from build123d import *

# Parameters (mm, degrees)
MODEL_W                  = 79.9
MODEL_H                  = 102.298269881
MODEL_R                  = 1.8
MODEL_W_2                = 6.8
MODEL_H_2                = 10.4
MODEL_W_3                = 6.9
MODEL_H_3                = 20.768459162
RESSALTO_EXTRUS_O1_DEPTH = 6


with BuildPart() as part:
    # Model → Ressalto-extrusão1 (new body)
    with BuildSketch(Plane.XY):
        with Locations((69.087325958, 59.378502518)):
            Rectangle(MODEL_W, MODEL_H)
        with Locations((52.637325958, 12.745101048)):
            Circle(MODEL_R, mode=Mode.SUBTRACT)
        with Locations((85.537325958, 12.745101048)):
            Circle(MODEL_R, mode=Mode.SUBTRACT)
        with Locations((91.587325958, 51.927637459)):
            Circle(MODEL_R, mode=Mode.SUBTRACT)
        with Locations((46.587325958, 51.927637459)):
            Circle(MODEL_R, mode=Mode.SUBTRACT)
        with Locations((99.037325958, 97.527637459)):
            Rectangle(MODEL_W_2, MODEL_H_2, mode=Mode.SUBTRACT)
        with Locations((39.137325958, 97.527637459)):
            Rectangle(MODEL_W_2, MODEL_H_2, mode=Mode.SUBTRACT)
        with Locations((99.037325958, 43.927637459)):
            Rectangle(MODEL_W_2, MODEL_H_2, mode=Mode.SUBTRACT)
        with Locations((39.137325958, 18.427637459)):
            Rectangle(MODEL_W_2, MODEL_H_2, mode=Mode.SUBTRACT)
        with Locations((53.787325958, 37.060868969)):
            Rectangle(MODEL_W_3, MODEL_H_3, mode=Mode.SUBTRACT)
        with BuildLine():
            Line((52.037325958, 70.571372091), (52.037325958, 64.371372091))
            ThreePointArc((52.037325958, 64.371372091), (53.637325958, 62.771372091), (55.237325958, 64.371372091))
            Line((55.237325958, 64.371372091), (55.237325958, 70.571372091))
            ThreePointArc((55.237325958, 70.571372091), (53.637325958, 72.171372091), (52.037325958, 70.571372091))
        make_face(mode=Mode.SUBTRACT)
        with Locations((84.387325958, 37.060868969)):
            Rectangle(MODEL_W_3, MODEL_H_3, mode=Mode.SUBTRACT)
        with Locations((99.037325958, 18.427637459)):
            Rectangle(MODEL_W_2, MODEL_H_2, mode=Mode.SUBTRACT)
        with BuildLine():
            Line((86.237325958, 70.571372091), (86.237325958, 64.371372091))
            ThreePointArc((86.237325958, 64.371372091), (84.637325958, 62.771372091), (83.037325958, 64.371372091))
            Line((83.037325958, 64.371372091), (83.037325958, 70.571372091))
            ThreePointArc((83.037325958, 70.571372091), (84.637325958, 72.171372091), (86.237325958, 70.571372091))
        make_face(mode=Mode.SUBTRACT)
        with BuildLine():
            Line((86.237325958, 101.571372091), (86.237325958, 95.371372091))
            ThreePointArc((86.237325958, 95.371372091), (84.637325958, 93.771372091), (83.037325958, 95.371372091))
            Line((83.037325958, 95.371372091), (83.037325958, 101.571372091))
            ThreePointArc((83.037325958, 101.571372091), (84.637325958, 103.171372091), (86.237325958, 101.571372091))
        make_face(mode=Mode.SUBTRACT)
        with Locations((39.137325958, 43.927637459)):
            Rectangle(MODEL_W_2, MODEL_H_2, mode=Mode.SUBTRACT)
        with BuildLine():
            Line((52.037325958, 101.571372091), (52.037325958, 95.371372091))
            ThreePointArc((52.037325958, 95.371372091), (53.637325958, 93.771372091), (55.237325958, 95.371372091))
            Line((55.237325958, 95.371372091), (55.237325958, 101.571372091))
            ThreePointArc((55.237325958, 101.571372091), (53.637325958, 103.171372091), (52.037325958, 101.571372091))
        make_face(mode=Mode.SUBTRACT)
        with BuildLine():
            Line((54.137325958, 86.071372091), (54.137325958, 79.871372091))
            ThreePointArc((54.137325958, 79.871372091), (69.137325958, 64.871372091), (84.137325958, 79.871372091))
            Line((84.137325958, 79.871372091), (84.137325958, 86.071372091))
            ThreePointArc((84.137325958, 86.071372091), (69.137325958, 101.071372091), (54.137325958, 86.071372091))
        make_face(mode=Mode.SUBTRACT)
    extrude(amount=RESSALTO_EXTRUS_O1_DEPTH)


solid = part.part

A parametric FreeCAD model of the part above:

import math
import FreeCAD as App
import Part
import Sketcher
from FreeCAD import Vector
Q = App.Units.Quantity


def add_polygon(sketch, points):
    """Adds a closed chain of lines whose ends are joined by coincident constraints."""
    first, n = sketch.GeometryCount, len(points)
    for a, b in zip(points, points[1:] + points[:1]):
        sketch.addGeometry(Part.LineSegment(App.Vector(*a, 0), App.Vector(*b, 0)), False)
    for i in range(n):
        sketch.addConstraint(Sketcher.Constraint("Coincident", first + i, 2, first + (i + 1) % n, 1))

doc = App.newDocument("Part")
body = doc.addObject("PartDesign::Body", "Body")

sketch1 = body.newObject("Sketcher::SketchObject", "Sketch")
sketch1.AttachmentSupport = (doc.getObject("XY_Plane"), [""])
sketch1.MapMode = "FlatFace"
add_polygon(sketch1, [(29.137326, 110.527637), (29.137326, 8.229368), (109.037326, 8.229368), (109.037326, 110.527637)])
add_polygon(sketch1, [(42.537326, 13.227637), (35.737326, 13.227637), (35.737326, 23.627637), (42.537326, 23.627637)])
sketch1.addGeometry(Part.Circle(Vector(52.637326, 12.745101, 0), Vector(0, 0, 1), 1.8), False)
add_polygon(sketch1, [(42.537326, 38.727637), (35.737326, 38.727637), (35.737326, 49.127637), (42.537326, 49.127637)])
sketch1.addGeometry(Part.Circle(Vector(46.587326, 51.927637, 0), Vector(0, 0, 1), 1.8), False)
add_polygon(sketch1, [(57.237326, 26.676639), (50.337326, 26.676639), (50.337326, 47.445099), (57.237326, 47.445099)])
sketch1.addGeometry(Part.Circle(Vector(85.537326, 12.745101, 0), Vector(0, 0, 1), 1.8), False)
add_polygon(sketch1, [(102.437326, 13.227637), (95.637326, 13.227637), (95.637326, 23.627637), (102.437326, 23.627637)])
add_polygon(sketch1, [(87.837326, 26.676639), (80.937326, 26.676639), (80.937326, 47.445099), (87.837326, 47.445099)])
add_polygon(sketch1, [(102.437326, 38.727637), (95.637326, 38.727637), (95.637326, 49.127637), (102.437326, 49.127637)])
sketch1.addGeometry(Part.Circle(Vector(91.587326, 51.927637, 0), Vector(0, 0, 1), 1.8), False)
sketch1.addGeometry(Part.LineSegment(Vector(52.037326, 64.371372, 0), Vector(52.037326, 70.571372, 0)), False)
sketch1.addGeometry(Part.ArcOfCircle(Part.Circle(Vector(53.637326, 70.571372, 0), Vector(0, 0, 1), 1.6), math.radians(0), math.radians(180)), False)
sketch1.addGeometry(Part.LineSegment(Vector(55.237326, 70.571372, 0), Vector(55.237326, 64.371372, 0)), False)
sketch1.addGeometry(Part.ArcOfCircle(Part.Circle(Vector(53.637326, 64.371372, 0), Vector(0, 0, 1), 1.6), math.radians(180), math.radians(360)), False)
add_polygon(sketch1, [(42.537326, 92.327637), (35.737326, 92.327637), (35.737326, 102.727637), (42.537326, 102.727637)])
sketch1.addGeometry(Part.LineSegment(Vector(52.037326, 95.371372, 0), Vector(52.037326, 101.571372, 0)), False)
sketch1.addGeometry(Part.ArcOfCircle(Part.Circle(Vector(53.637326, 101.571372, 0), Vector(0, 0, 1), 1.6), math.radians(0), math.radians(180)), False)
sketch1.addGeometry(Part.LineSegment(Vector(55.237326, 101.571372, 0), Vector(55.237326, 95.371372, 0)), False)
sketch1.addGeometry(Part.ArcOfCircle(Part.Circle(Vector(53.637326, 95.371372, 0), Vector(0, 0, 1), 1.6), math.radians(180), math.radians(360)), False)
sketch1.addGeometry(Part.ArcOfCircle(Part.Circle(Vector(84.637326, 70.571372, 0), Vector(0, 0, 1), 1.6), math.radians(0), math.radians(180)), False)
sketch1.addGeometry(Part.LineSegment(Vector(86.237326, 70.571372, 0), Vector(86.237326, 64.371372, 0)), False)
sketch1.addGeometry(Part.ArcOfCircle(Part.Circle(Vector(84.637326, 64.371372, 0), Vector(0, 0, 1), 1.6), math.radians(180), math.radians(360)), False)
sketch1.addGeometry(Part.LineSegment(Vector(83.037326, 64.371372, 0), Vector(83.037326, 70.571372, 0)), False)
sketch1.addGeometry(Part.LineSegment(Vector(54.137326, 79.871372, 0), Vector(54.137326, 86.071372, 0)), False)
sketch1.addGeometry(Part.ArcOfCircle(Part.Circle(Vector(69.137326, 86.071372, 0), Vector(0, 0, 1), 15), math.radians(0), math.radians(180)), False)
sketch1.addGeometry(Part.LineSegment(Vector(84.137326, 86.071372, 0), Vector(84.137326, 79.871372, 0)), False)
sketch1.addGeometry(Part.ArcOfCircle(Part.Circle(Vector(69.137326, 79.871372, 0), Vector(0, 0, 1), 15), math.radians(180), math.radians(360)), False)
sketch1.addGeometry(Part.ArcOfCircle(Part.Circle(Vector(84.637326, 101.571372, 0), Vector(0, 0, 1), 1.6), math.radians(0), math.radians(180)), False)
sketch1.addGeometry(Part.LineSegment(Vector(86.237326, 101.571372, 0), Vector(86.237326, 95.371372, 0)), False)
sketch1.addGeometry(Part.ArcOfCircle(Part.Circle(Vector(84.637326, 95.371372, 0), Vector(0, 0, 1), 1.6), math.radians(180), math.radians(360)), False)
sketch1.addGeometry(Part.LineSegment(Vector(83.037326, 95.371372, 0), Vector(83.037326, 101.571372, 0)), False)
add_polygon(sketch1, [(102.437326, 92.327637), (95.637326, 92.327637), (95.637326, 102.727637), (102.437326, 102.727637)])
sketch1.addConstraint([
    Sketcher.Constraint("Tangent", 32, 2, 33, 2),
    Sketcher.Constraint("Tangent", 33, 1, 34, 1),
    Sketcher.Constraint("Tangent", 34, 2, 35, 2),
    Sketcher.Constraint("Tangent", 35, 1, 32, 1),
    Sketcher.Constraint("Tangent", 40, 2, 41, 2),
    Sketcher.Constraint("Tangent", 41, 1, 42, 1),
    Sketcher.Constraint("Tangent", 42, 2, 43, 2),
    Sketcher.Constraint("Tangent", 43, 1, 40, 1),
    Sketcher.Constraint("Tangent", 44, 1, 45, 1),
    Sketcher.Constraint("Tangent", 45, 2, 46, 2),
    Sketcher.Constraint("Tangent", 46, 1, 47, 1),
    Sketcher.Constraint("Tangent", 47, 2, 44, 2),
    Sketcher.Constraint("Tangent", 48, 2, 49, 2),
    Sketcher.Constraint("Tangent", 49, 1, 50, 1),
    Sketcher.Constraint("Tangent", 50, 2, 51, 2),
    Sketcher.Constraint("Tangent", 51, 1, 48, 1),
    Sketcher.Constraint("Tangent", 52, 1, 53, 1),
    Sketcher.Constraint("Tangent", 53, 2, 54, 2),
    Sketcher.Constraint("Tangent", 54, 1, 55, 1),
    Sketcher.Constraint("Tangent", 55, 2, 52, 2),
    Sketcher.Constraint("Vertical", 0),
    Sketcher.Constraint("Horizontal", 1),
    Sketcher.Constraint("Vertical", 2),
    Sketcher.Constraint("Horizontal", 3),
    Sketcher.Constraint("Horizontal", 4),
    Sketcher.Constraint("Vertical", 5),
    Sketcher.Constraint("Horizontal", 6),
    Sketcher.Constraint("Vertical", 7),
    Sketcher.Constraint("Horizontal", 9),
    Sketcher.Constraint("Vertical", 10),
    Sketcher.Constraint("Horizontal", 11),
    Sketcher.Constraint("Vertical", 12),
    Sketcher.Constraint("Horizontal", 14),
    Sketcher.Constraint("Vertical", 15),
    Sketcher.Constraint("Horizontal", 16),
    Sketcher.Constraint("Vertical", 17),
    Sketcher.Constraint("Horizontal", 19),
    Sketcher.Constraint("Vertical", 20),
    Sketcher.Constraint("Horizontal", 21),
    Sketcher.Constraint("Vertical", 22),
    Sketcher.Constraint("Horizontal", 23),
    Sketcher.Constraint("Vertical", 24),
    Sketcher.Constraint("Horizontal", 25),
    Sketcher.Constraint("Vertical", 26),
    Sketcher.Constraint("Horizontal", 27),
    Sketcher.Constraint("Vertical", 28),
    Sketcher.Constraint("Horizontal", 29),
    Sketcher.Constraint("Vertical", 30),
    Sketcher.Constraint("Vertical", 32),
    Sketcher.Constraint("Vertical", 34),
    Sketcher.Constraint("Horizontal", 36),
    Sketcher.Constraint("Vertical", 37),
    Sketcher.Constraint("Horizontal", 38),
    Sketcher.Constraint("Vertical", 39),
    Sketcher.Constraint("Vertical", 40),
    Sketcher.Constraint("Vertical", 42),
    Sketcher.Constraint("Vertical", 45),
    Sketcher.Constraint("Vertical", 47),
    Sketcher.Constraint("Vertical", 48),
    Sketcher.Constraint("Vertical", 50),
    Sketcher.Constraint("Vertical", 53),
    Sketcher.Constraint("Vertical", 55),
    Sketcher.Constraint("Horizontal", 56),
    Sketcher.Constraint("Vertical", 57),
    Sketcher.Constraint("Horizontal", 58),
    Sketcher.Constraint("Vertical", 59),
    Sketcher.Constraint("Equal", 8, 13),
    Sketcher.Constraint("Equal", 13, 18),
    Sketcher.Constraint("Equal", 18, 31),
    Sketcher.Constraint("Equal", 35, 41),
    Sketcher.Constraint("Equal", 43, 44),
    Sketcher.Constraint("Equal", 46, 52),
    Sketcher.Constraint("Horizontal", 8, 3, 18, 3),
    Sketcher.Constraint("Horizontal", 13, 3, 31, 3),
    Sketcher.Constraint("Horizontal", 33, 3, 44, 3),
    Sketcher.Constraint("Horizontal", 35, 3, 46, 3),
    Sketcher.Constraint("Horizontal", 41, 3, 52, 3),
    Sketcher.Constraint("Horizontal", 43, 3, 54, 3),
    Sketcher.Constraint("Horizontal", 7, 2, 19, 2),
    Sketcher.Constraint("Horizontal", 6, 2, 20, 2),
    Sketcher.Constraint("Horizontal", 17, 2, 23, 2),
    Sketcher.Constraint("Horizontal", 16, 2, 24, 2),
    Sketcher.Constraint("Horizontal", 12, 2, 27, 2),
    Sketcher.Constraint("Horizontal", 11, 2, 28, 2),
    Sketcher.Constraint("Horizontal", 39, 2, 56, 2),
    Sketcher.Constraint("Horizontal", 38, 2, 57, 2),
    Sketcher.Constraint("Vertical", 35, 3, 41, 3),
    Sketcher.Constraint("Vertical", 46, 3, 52, 3),
    Sketcher.Constraint("Vertical", 5, 2, 9, 2),
    Sketcher.Constraint("Vertical", 7, 2, 11, 2),
    Sketcher.Constraint("Vertical", 20, 2, 27, 2),
    Sketcher.Constraint("Vertical", 22, 2, 29, 2),
    Sketcher.Constraint("Vertical", 10, 2, 36, 2),
    Sketcher.Constraint("Vertical", 12, 2, 38, 2),
    Sketcher.Constraint("Vertical", 28, 2, 56, 2),
    Sketcher.Constraint("Vertical", 30, 2, 58, 2),
    Sketcher.Constraint("Equal", 11, 19),
    Sketcher.Constraint("Equal", 16, 23),
    Sketcher.Constraint("Equal", 7, 10),
    Sketcher.Constraint("Equal", 30, 37),
    Sketcher.Constraint("Equal", 34, 40),
    Sketcher.Constraint("Equal", 47, 48),
    Sketcher.Constraint("Radius", 49, Q("15 mm")),
    Sketcher.Constraint("Diameter", 8, Q("3.6 mm")),
    Sketcher.Constraint("Radius", 33, Q("1.6 mm")),
    Sketcher.Constraint("DistanceX", 1, 1, 1, 2, Q("79.9 mm")),
    Sketcher.Constraint("DistanceX", 4, 2, 4, 1, Q("6.8 mm")),
    Sketcher.Constraint("DistanceX", 14, 2, 14, 1, Q("6.9 mm")),
    Sketcher.Constraint("DistanceY", 5, 1, 5, 2, Q("10.4 mm")),
    Sketcher.Constraint("DistanceY", 32, 1, 32, 2, Q("6.2 mm")),
    Sketcher.Constraint("DistanceY", 0, 2, 0, 1, Q("102.29827 mm")),
    Sketcher.Constraint("DistanceY", 15, 1, 15, 2, Q("20.768459 mm")),
    Sketcher.Constraint("DistanceY", -1, 1, 8, 3, Q("12.745101 mm")),
    Sketcher.Constraint("DistanceY", -1, 1, 15, 2, Q("47.445099 mm")),
    Sketcher.Constraint("DistanceX", -1, 1, 8, 3, Q("52.637326 mm")),
    Sketcher.Constraint("DistanceX", -1, 1, 13, 3, Q("46.587326 mm")),
    Sketcher.Constraint("DistanceY", -1, 1, 13, 3, Q("51.927637 mm")),
    Sketcher.Constraint("DistanceX", -1, 1, 18, 3, Q("85.537326 mm")),
    Sketcher.Constraint("DistanceX", -1, 1, 31, 3, Q("91.587326 mm")),
    Sketcher.Constraint("DistanceX", -1, 1, 33, 3, Q("53.637326 mm")),
    Sketcher.Constraint("DistanceY", -1, 1, 33, 3, Q("70.571372 mm")),
    Sketcher.Constraint("DistanceY", -1, 1, 41, 3, Q("101.571372 mm")),
    Sketcher.Constraint("DistanceX", -1, 1, 44, 3, Q("84.637326 mm")),
    Sketcher.Constraint("DistanceX", -1, 1, 49, 3, Q("69.137326 mm")),
    Sketcher.Constraint("DistanceY", -1, 1, 49, 3, Q("86.071372 mm")),
    Sketcher.Constraint("DistanceX", -1, 1, 0, 2, Q("29.137326 mm")),
    Sketcher.Constraint("DistanceY", -1, 1, 0, 2, Q("8.229368 mm")),
    Sketcher.Constraint("DistanceX", -1, 1, 4, 2, Q("35.737326 mm")),
    Sketcher.Constraint("DistanceY", -1, 1, 4, 2, Q("13.227637 mm")),
    Sketcher.Constraint("DistanceY", -1, 1, 9, 2, Q("38.727637 mm")),
    Sketcher.Constraint("DistanceX", -1, 1, 14, 2, Q("50.337326 mm")),
    Sketcher.Constraint("DistanceX", -1, 1, 19, 2, Q("95.637326 mm")),
    Sketcher.Constraint("DistanceX", -1, 1, 23, 2, Q("80.937326 mm")),
    Sketcher.Constraint("DistanceY", -1, 1, 36, 2, Q("92.327637 mm")),
])
pad1 = body.newObject("PartDesign::Pad", "Pad")
pad1.Profile = sketch1
pad1.Length = 6

doc.recompute()
